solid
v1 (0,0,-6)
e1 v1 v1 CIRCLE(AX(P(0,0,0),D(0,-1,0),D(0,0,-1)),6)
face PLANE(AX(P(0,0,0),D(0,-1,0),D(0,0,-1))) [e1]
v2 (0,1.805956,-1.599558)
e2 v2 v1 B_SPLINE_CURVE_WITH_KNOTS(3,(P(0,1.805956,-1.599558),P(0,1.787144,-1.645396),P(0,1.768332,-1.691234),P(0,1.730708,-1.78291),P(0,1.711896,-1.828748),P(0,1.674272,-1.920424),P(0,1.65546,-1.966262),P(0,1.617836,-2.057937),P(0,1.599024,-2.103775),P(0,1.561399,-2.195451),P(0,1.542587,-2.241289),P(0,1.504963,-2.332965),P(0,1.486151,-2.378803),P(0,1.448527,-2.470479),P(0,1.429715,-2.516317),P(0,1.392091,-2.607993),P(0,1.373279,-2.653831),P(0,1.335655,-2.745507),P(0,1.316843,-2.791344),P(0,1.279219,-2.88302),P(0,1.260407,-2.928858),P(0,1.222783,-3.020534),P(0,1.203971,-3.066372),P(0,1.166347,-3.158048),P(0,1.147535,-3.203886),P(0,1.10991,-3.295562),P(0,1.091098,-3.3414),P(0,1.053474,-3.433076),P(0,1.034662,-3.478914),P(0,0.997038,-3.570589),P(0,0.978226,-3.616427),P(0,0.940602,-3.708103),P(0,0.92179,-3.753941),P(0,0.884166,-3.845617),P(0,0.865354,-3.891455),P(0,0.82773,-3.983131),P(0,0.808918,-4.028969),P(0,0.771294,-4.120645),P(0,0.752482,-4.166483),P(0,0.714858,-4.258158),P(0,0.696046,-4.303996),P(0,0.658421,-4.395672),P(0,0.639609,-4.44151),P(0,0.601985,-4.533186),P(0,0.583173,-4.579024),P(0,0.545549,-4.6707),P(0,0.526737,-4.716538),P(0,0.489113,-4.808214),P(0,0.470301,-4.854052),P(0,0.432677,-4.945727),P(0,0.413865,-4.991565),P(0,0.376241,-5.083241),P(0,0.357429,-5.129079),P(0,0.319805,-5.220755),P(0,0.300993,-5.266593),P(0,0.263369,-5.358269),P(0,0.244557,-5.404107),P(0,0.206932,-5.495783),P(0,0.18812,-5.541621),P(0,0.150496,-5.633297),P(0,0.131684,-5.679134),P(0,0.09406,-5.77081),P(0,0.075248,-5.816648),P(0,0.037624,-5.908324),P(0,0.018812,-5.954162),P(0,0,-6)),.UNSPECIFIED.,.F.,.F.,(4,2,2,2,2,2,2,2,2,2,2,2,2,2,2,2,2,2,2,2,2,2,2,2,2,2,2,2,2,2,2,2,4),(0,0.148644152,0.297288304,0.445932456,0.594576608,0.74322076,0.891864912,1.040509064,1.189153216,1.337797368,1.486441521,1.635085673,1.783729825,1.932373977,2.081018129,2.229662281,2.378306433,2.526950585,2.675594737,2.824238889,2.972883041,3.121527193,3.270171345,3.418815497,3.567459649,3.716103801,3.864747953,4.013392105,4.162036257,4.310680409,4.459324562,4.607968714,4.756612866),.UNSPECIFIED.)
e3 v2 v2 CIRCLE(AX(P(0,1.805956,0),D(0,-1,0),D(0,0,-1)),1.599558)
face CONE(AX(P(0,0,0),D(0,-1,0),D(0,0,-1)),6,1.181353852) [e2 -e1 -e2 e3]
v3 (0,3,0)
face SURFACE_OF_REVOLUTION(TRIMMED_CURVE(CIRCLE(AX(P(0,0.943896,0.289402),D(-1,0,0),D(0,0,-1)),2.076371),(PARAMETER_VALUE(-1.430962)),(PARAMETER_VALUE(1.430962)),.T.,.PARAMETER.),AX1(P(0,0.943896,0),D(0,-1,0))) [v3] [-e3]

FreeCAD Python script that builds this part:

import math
import FreeCAD as App
import Part
import Sketcher

doc = App.newDocument("Part")
body = doc.addObject("PartDesign::Body", "Body")

sketch1 = body.newObject("Sketcher::SketchObject", "Sketch")
sketch1.AttachmentSupport = (doc.getObject("YZ_Plane"), [""])
sketch1.MapMode = "FlatFace"
sketch1.addGeometry([
    Part.LineSegment(App.Vector(0, 0, 0), App.Vector(0, -6, 0)),
    Part.LineSegment(App.Vector(0, -6, 0), App.Vector(1.8, -1.6, 0)),
    Part.ArcOfCircle(Part.Circle(App.Vector(0.9, 0.3, 0), App.Vector(0, 0, 1), 2.1), math.radians(-65), math.radians(-8)),
    Part.LineSegment(App.Vector(3, 0, 0), App.Vector(0, 0, 0)),
], False)
sketch1.addConstraint([
    Sketcher.Constraint("Coincident", 0, 2, 1, 1),
    Sketcher.Constraint("Coincident", 1, 2, 2, 1),
    Sketcher.Constraint("Coincident", 2, 2, 3, 1),
    Sketcher.Constraint("Coincident", 3, 2, 0, 1),
    Sketcher.Constraint("Vertical", 0),
    Sketcher.Constraint("Horizontal", 3),
    Sketcher.Constraint("Coincident", 3, 2, -1, 1),
    Sketcher.Constraint("DistanceX", 3, 2, 3, 1, 3.0),
    Sketcher.Constraint("DistanceY", 0, 2, 0, 1, 6.0),
    Sketcher.Constraint("Radius", 2, 2.076371),
    Sketcher.Constraint("DistanceY", -1, 1, 2, 3, 0.289402),
    Sketcher.Constraint("DistanceY", 1, 2, -1, 1, 1.599558),
])
revolution = body.newObject("PartDesign::Revolution", "Revolution")
revolution.Profile = sketch1
revolution.ReferenceAxis = (sketch1, ["H_Axis"])
revolution.Angle = 360

doc.recompute()
